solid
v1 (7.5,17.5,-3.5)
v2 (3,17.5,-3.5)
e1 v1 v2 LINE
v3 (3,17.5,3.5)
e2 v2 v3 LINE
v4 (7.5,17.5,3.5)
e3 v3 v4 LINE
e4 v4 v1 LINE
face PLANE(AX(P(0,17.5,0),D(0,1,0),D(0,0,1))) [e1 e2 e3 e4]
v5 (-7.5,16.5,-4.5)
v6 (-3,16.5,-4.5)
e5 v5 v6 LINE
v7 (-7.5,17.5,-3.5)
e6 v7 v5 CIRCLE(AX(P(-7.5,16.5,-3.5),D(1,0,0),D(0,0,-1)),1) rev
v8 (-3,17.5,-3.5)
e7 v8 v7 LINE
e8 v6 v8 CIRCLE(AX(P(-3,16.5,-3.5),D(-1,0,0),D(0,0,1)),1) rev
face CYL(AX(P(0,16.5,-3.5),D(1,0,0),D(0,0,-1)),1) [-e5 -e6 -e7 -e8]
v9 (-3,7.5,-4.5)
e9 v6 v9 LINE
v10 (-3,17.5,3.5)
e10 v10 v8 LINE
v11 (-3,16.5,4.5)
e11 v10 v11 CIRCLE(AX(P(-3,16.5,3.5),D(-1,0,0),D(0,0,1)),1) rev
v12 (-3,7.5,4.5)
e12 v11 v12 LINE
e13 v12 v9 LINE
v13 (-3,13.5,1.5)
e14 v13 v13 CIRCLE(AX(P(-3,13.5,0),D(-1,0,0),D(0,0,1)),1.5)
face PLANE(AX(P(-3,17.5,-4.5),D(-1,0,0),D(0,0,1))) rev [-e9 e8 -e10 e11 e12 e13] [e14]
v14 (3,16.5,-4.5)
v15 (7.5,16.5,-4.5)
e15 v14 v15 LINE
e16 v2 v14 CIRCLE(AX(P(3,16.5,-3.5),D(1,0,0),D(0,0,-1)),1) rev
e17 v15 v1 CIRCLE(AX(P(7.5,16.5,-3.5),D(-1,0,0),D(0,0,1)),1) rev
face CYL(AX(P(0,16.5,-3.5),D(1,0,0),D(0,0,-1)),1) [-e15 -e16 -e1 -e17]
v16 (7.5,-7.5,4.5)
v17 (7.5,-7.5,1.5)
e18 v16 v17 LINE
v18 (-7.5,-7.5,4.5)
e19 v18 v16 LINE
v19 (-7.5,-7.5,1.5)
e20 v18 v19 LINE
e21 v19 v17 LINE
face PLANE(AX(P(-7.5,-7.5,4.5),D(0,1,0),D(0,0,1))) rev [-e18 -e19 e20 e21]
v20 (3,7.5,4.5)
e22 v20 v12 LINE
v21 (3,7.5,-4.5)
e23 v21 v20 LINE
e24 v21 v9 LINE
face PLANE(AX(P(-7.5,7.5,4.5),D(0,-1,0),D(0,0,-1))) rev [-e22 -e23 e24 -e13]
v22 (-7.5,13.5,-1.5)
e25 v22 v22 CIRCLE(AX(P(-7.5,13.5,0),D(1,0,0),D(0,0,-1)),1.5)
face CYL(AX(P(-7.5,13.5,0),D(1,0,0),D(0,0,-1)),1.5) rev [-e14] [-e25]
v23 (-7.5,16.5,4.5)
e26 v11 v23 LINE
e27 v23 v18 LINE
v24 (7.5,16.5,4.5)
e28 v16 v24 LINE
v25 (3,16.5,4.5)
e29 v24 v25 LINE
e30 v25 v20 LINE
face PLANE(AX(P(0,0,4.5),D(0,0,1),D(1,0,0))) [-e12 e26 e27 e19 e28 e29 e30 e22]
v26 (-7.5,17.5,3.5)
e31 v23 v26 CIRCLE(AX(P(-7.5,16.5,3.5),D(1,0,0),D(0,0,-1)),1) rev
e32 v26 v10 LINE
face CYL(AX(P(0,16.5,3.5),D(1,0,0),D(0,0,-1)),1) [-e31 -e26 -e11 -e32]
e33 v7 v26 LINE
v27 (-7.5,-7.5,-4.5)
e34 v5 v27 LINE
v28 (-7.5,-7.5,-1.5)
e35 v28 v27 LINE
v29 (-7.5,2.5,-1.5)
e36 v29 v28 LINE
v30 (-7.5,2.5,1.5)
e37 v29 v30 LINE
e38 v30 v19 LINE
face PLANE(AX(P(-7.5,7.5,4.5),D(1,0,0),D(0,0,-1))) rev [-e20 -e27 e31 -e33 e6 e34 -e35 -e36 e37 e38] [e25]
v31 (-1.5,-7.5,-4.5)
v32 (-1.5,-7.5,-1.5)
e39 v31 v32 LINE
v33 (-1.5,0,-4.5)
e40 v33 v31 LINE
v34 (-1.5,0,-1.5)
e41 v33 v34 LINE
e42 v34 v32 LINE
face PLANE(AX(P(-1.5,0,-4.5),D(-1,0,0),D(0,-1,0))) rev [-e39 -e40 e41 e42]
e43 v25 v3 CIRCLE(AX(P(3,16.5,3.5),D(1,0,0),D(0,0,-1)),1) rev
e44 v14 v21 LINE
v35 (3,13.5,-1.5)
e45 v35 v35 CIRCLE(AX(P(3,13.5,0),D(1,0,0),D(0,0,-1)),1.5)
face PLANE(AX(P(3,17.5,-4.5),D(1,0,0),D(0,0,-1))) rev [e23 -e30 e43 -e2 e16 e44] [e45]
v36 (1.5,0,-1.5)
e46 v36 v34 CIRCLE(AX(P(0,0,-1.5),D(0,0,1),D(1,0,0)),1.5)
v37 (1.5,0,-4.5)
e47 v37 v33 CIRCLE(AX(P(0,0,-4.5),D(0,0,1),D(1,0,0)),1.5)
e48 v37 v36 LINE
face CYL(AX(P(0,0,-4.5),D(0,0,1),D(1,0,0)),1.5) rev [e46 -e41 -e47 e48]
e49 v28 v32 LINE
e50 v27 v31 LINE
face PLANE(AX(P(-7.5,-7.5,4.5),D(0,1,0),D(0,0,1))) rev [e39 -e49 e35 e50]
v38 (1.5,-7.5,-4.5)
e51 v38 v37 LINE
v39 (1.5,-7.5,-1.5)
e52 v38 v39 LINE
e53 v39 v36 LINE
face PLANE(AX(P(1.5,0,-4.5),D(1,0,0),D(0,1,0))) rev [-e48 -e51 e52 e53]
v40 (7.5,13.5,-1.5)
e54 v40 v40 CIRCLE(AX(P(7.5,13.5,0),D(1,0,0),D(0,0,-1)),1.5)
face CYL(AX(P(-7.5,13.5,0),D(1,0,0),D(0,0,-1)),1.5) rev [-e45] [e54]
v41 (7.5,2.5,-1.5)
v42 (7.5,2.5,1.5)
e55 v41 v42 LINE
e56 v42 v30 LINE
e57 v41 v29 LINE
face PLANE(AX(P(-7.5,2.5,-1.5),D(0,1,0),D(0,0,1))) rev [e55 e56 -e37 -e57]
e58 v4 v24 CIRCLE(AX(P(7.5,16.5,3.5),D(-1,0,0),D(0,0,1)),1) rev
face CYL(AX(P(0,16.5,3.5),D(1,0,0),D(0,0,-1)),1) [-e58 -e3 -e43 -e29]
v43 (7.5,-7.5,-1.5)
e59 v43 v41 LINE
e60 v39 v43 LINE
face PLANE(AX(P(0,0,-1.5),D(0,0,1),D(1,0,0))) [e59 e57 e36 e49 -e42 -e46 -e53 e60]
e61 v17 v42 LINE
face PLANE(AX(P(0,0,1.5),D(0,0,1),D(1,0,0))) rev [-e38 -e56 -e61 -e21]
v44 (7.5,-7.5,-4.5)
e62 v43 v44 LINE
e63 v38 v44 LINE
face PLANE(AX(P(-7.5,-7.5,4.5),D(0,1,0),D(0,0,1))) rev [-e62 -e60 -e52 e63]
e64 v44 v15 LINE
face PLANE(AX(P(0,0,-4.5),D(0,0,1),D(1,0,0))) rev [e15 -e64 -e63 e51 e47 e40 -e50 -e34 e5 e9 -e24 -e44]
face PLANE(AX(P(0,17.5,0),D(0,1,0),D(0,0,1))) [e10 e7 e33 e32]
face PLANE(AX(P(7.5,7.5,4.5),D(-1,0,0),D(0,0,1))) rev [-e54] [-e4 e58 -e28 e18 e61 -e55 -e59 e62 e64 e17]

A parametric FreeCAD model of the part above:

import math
import FreeCAD as App
import Part
import Sketcher


def edges_at(feature, points):
    """Names of the edges that pass closest to the given points."""
    edges = feature.Shape.Edges
    near = lambda p: min(range(len(edges)), key=lambda i: edges[i].distToShape(Part.Vertex(*p))[0])
    return sorted({f"Edge{near(p) + 1}" for p in points})


def add_polygon(sketch, points):
    """Adds a closed chain of lines whose ends are joined by coincident constraints."""
    first, n = sketch.GeometryCount, len(points)
    for a, b in zip(points, points[1:] + points[:1]):
        sketch.addGeometry(Part.LineSegment(App.Vector(*a, 0), App.Vector(*b, 0)), False)
    for i in range(n):
        sketch.addConstraint(Sketcher.Constraint("Coincident", first + i, 2, first + (i + 1) % n, 1))

doc = App.newDocument("Part")
body = doc.addObject("PartDesign::Body", "Body")

# Sketch on XY plane
sketch1 = body.newObject("Sketcher::SketchObject", "Sketch")
sketch1.AttachmentSupport = (doc.getObject("XY_Plane"), [""])
sketch1.MapMode = "FlatFace"
add_polygon(sketch1, [(-8, 8), (-8, -8), (8, -8), (8, 8)])  # lines 0-3
sketch1.addConstraint([
    Sketcher.Constraint("Vertical", 0),
    Sketcher.Constraint("Horizontal", 1),
    Sketcher.Constraint("Vertical", 2),
    Sketcher.Constraint("Horizontal", 3),
    Sketcher.Constraint("Symmetric", 0, 2, 2, 2, -1, 1),
    Sketcher.Constraint("Equal", 3, 0),
    Sketcher.Constraint("DistanceX", 1, 1, 1, 2, 15.0),
])
pad1 = body.newObject("PartDesign::Pad", "Pad")
pad1.Profile = sketch1
pad1.Length = 9
pad1.Midplane = True

# Sketch on XY plane
sketch2 = body.newObject("Sketcher::SketchObject", "Sketch001")
sketch2.AttachmentSupport = (doc.getObject("XY_Plane"), [""])
sketch2.MapMode = "FlatFace"
add_polygon(sketch2, [(-8, 2), (-8, -8), (8, -8), (8, 2)])  # lines 0-3
sketch2.addConstraint([
    Sketcher.Constraint("Vertical", 0),
    Sketcher.Constraint("Horizontal", 1),
    Sketcher.Constraint("Vertical", 2),
    Sketcher.Constraint("Horizontal", 3),
    Sketcher.Constraint("DistanceX", 1, 1, 1, 2, 15.0),
    Sketcher.Constraint("DistanceY", 0, 2, 0, 1, 10.0),
    Sketcher.Constraint("DistanceX", 0, 2, -1, 1, 7.5),
    Sketcher.Constraint("DistanceY", 0, 2, -1, 1, 7.5),
])
pocket1 = body.newObject("PartDesign::Pocket", "Pocket")
pocket1.Profile = sketch2
pocket1.Length = 3
pocket1.Midplane = True

# Sketch on XY plane
sketch3 = body.newObject("Sketcher::SketchObject", "Sketch002")
sketch3.AttachmentSupport = (doc.getObject("XY_Plane"), [""])
sketch3.MapMode = "FlatFace"
sketch3.addGeometry([
    Part.LineSegment(App.Vector(-1.5, 0, 0), App.Vector(-1.5, -7.5, 0)),
    Part.LineSegment(App.Vector(-1.5, -7.5, 0), App.Vector(1.5, -7.5, 0)),
    Part.LineSegment(App.Vector(1.5, -7.5, 0), App.Vector(1.5, 0, 0)),
    Part.ArcOfCircle(Part.Circle(App.Vector(0, 0, 0), App.Vector(0, 0, 1), 1.5), math.radians(0), math.radians(180)),
], False)
sketch3.addConstraint([
    Sketcher.Constraint("Coincident", 0, 2, 1, 1),
    Sketcher.Constraint("Coincident", 1, 2, 2, 1),
    Sketcher.Constraint("Tangent", 2, 2, 3, 1),
    Sketcher.Constraint("Tangent", 3, 2, 0, 1),
    Sketcher.Constraint("Vertical", 0),
    Sketcher.Constraint("Horizontal", 1),
    Sketcher.Constraint("Vertical", 2),
    Sketcher.Constraint("Coincident", 3, 3, -1, 1),
    Sketcher.Constraint("Radius", 3, 1.5),
    Sketcher.Constraint("DistanceY", 0, 2, 0, 1, 7.5),
])
pocket2 = body.newObject("PartDesign::Pocket", "Pocket001")
pocket2.Profile = sketch3
pocket2.Type = "ThroughAll"

# Sketch on XZ plane
sketch4 = body.newObject("Sketcher::SketchObject", "Sketch003")
sketch4.AttachmentSupport = (doc.getObject("XZ_Plane"), [""])
sketch4.MapMode = "FlatFace"
sketch4.AttachmentOffset = App.Placement(App.Vector(0, 0, -7.5), App.Rotation())
add_polygon(sketch4, [(-7.5, -4.5), (-7.5, 4.5), (-3, 4.5), (-3, -4.5)])  # lines 0-3
add_polygon(sketch4, [(3, -4.5), (3, 4.5), (7.5, 4.5), (7.5, -4.5)])  # lines 4-7
sketch4.addConstraint([
    Sketcher.Constraint("Vertical", 0),
    Sketcher.Constraint("Horizontal", 1),
    Sketcher.Constraint("Vertical", 2),
    Sketcher.Constraint("Horizontal", 3),
    Sketcher.Constraint("Vertical", 4),
    Sketcher.Constraint("Horizontal", 5),
    Sketcher.Constraint("Vertical", 6),
    Sketcher.Constraint("Horizontal", 7),
    Sketcher.Constraint("Symmetric", 2, 2, 4, 2, -1, 1),
    Sketcher.Constraint("Symmetric", 0, 2, 6, 2, -1, 1),
    Sketcher.Constraint("Horizontal", 1, 2, 4, 2),
    Sketcher.Constraint("DistanceY", 0, 1, 0, 2, 9.0),
    Sketcher.Constraint("DistanceX", 1, 1, 1, 2, 4.5),
    Sketcher.Constraint("DistanceX", 1, 2, -1, 1, 3.0),
])
pad2 = body.newObject("PartDesign::Pad", "Pad001")
pad2.Profile = sketch4
pad2.Length = 10
pad2.Reversed = True

# Sketch on YZ plane
sketch5 = body.newObject("Sketcher::SketchObject", "Sketch004")
sketch5.AttachmentSupport = (doc.getObject("YZ_Plane"), [""])
sketch5.MapMode = "FlatFace"
sketch5.addGeometry(Part.Circle(App.Vector(13.5, 0, 0), App.Vector(0, 0, 1), 1.5), False)
sketch5.addConstraint([
    Sketcher.Constraint("PointOnObject", 0, 3, -1),
    Sketcher.Constraint("Diameter", 0, 3.0),
    Sketcher.Constraint("DistanceX", -1, 1, 0, 3, 13.5),
])
pocket3 = body.newObject("PartDesign::Pocket", "Pocket002")
pocket3.Profile = sketch5
pocket3.Type = "ThroughAll"
pocket3.Midplane = True
doc.recompute()

fillet = body.newObject("PartDesign::Fillet", "Fillet")
fillet.Base = (pocket3, edges_at(pocket3, [
    (5.25, 17.5, -4.5),
    (5.25, 17.5, 4.5),
    (-5.25, 17.5, 4.5),
    (-5.25, 17.5, -4.5),
]))
fillet.Radius = 1

doc.recompute()
